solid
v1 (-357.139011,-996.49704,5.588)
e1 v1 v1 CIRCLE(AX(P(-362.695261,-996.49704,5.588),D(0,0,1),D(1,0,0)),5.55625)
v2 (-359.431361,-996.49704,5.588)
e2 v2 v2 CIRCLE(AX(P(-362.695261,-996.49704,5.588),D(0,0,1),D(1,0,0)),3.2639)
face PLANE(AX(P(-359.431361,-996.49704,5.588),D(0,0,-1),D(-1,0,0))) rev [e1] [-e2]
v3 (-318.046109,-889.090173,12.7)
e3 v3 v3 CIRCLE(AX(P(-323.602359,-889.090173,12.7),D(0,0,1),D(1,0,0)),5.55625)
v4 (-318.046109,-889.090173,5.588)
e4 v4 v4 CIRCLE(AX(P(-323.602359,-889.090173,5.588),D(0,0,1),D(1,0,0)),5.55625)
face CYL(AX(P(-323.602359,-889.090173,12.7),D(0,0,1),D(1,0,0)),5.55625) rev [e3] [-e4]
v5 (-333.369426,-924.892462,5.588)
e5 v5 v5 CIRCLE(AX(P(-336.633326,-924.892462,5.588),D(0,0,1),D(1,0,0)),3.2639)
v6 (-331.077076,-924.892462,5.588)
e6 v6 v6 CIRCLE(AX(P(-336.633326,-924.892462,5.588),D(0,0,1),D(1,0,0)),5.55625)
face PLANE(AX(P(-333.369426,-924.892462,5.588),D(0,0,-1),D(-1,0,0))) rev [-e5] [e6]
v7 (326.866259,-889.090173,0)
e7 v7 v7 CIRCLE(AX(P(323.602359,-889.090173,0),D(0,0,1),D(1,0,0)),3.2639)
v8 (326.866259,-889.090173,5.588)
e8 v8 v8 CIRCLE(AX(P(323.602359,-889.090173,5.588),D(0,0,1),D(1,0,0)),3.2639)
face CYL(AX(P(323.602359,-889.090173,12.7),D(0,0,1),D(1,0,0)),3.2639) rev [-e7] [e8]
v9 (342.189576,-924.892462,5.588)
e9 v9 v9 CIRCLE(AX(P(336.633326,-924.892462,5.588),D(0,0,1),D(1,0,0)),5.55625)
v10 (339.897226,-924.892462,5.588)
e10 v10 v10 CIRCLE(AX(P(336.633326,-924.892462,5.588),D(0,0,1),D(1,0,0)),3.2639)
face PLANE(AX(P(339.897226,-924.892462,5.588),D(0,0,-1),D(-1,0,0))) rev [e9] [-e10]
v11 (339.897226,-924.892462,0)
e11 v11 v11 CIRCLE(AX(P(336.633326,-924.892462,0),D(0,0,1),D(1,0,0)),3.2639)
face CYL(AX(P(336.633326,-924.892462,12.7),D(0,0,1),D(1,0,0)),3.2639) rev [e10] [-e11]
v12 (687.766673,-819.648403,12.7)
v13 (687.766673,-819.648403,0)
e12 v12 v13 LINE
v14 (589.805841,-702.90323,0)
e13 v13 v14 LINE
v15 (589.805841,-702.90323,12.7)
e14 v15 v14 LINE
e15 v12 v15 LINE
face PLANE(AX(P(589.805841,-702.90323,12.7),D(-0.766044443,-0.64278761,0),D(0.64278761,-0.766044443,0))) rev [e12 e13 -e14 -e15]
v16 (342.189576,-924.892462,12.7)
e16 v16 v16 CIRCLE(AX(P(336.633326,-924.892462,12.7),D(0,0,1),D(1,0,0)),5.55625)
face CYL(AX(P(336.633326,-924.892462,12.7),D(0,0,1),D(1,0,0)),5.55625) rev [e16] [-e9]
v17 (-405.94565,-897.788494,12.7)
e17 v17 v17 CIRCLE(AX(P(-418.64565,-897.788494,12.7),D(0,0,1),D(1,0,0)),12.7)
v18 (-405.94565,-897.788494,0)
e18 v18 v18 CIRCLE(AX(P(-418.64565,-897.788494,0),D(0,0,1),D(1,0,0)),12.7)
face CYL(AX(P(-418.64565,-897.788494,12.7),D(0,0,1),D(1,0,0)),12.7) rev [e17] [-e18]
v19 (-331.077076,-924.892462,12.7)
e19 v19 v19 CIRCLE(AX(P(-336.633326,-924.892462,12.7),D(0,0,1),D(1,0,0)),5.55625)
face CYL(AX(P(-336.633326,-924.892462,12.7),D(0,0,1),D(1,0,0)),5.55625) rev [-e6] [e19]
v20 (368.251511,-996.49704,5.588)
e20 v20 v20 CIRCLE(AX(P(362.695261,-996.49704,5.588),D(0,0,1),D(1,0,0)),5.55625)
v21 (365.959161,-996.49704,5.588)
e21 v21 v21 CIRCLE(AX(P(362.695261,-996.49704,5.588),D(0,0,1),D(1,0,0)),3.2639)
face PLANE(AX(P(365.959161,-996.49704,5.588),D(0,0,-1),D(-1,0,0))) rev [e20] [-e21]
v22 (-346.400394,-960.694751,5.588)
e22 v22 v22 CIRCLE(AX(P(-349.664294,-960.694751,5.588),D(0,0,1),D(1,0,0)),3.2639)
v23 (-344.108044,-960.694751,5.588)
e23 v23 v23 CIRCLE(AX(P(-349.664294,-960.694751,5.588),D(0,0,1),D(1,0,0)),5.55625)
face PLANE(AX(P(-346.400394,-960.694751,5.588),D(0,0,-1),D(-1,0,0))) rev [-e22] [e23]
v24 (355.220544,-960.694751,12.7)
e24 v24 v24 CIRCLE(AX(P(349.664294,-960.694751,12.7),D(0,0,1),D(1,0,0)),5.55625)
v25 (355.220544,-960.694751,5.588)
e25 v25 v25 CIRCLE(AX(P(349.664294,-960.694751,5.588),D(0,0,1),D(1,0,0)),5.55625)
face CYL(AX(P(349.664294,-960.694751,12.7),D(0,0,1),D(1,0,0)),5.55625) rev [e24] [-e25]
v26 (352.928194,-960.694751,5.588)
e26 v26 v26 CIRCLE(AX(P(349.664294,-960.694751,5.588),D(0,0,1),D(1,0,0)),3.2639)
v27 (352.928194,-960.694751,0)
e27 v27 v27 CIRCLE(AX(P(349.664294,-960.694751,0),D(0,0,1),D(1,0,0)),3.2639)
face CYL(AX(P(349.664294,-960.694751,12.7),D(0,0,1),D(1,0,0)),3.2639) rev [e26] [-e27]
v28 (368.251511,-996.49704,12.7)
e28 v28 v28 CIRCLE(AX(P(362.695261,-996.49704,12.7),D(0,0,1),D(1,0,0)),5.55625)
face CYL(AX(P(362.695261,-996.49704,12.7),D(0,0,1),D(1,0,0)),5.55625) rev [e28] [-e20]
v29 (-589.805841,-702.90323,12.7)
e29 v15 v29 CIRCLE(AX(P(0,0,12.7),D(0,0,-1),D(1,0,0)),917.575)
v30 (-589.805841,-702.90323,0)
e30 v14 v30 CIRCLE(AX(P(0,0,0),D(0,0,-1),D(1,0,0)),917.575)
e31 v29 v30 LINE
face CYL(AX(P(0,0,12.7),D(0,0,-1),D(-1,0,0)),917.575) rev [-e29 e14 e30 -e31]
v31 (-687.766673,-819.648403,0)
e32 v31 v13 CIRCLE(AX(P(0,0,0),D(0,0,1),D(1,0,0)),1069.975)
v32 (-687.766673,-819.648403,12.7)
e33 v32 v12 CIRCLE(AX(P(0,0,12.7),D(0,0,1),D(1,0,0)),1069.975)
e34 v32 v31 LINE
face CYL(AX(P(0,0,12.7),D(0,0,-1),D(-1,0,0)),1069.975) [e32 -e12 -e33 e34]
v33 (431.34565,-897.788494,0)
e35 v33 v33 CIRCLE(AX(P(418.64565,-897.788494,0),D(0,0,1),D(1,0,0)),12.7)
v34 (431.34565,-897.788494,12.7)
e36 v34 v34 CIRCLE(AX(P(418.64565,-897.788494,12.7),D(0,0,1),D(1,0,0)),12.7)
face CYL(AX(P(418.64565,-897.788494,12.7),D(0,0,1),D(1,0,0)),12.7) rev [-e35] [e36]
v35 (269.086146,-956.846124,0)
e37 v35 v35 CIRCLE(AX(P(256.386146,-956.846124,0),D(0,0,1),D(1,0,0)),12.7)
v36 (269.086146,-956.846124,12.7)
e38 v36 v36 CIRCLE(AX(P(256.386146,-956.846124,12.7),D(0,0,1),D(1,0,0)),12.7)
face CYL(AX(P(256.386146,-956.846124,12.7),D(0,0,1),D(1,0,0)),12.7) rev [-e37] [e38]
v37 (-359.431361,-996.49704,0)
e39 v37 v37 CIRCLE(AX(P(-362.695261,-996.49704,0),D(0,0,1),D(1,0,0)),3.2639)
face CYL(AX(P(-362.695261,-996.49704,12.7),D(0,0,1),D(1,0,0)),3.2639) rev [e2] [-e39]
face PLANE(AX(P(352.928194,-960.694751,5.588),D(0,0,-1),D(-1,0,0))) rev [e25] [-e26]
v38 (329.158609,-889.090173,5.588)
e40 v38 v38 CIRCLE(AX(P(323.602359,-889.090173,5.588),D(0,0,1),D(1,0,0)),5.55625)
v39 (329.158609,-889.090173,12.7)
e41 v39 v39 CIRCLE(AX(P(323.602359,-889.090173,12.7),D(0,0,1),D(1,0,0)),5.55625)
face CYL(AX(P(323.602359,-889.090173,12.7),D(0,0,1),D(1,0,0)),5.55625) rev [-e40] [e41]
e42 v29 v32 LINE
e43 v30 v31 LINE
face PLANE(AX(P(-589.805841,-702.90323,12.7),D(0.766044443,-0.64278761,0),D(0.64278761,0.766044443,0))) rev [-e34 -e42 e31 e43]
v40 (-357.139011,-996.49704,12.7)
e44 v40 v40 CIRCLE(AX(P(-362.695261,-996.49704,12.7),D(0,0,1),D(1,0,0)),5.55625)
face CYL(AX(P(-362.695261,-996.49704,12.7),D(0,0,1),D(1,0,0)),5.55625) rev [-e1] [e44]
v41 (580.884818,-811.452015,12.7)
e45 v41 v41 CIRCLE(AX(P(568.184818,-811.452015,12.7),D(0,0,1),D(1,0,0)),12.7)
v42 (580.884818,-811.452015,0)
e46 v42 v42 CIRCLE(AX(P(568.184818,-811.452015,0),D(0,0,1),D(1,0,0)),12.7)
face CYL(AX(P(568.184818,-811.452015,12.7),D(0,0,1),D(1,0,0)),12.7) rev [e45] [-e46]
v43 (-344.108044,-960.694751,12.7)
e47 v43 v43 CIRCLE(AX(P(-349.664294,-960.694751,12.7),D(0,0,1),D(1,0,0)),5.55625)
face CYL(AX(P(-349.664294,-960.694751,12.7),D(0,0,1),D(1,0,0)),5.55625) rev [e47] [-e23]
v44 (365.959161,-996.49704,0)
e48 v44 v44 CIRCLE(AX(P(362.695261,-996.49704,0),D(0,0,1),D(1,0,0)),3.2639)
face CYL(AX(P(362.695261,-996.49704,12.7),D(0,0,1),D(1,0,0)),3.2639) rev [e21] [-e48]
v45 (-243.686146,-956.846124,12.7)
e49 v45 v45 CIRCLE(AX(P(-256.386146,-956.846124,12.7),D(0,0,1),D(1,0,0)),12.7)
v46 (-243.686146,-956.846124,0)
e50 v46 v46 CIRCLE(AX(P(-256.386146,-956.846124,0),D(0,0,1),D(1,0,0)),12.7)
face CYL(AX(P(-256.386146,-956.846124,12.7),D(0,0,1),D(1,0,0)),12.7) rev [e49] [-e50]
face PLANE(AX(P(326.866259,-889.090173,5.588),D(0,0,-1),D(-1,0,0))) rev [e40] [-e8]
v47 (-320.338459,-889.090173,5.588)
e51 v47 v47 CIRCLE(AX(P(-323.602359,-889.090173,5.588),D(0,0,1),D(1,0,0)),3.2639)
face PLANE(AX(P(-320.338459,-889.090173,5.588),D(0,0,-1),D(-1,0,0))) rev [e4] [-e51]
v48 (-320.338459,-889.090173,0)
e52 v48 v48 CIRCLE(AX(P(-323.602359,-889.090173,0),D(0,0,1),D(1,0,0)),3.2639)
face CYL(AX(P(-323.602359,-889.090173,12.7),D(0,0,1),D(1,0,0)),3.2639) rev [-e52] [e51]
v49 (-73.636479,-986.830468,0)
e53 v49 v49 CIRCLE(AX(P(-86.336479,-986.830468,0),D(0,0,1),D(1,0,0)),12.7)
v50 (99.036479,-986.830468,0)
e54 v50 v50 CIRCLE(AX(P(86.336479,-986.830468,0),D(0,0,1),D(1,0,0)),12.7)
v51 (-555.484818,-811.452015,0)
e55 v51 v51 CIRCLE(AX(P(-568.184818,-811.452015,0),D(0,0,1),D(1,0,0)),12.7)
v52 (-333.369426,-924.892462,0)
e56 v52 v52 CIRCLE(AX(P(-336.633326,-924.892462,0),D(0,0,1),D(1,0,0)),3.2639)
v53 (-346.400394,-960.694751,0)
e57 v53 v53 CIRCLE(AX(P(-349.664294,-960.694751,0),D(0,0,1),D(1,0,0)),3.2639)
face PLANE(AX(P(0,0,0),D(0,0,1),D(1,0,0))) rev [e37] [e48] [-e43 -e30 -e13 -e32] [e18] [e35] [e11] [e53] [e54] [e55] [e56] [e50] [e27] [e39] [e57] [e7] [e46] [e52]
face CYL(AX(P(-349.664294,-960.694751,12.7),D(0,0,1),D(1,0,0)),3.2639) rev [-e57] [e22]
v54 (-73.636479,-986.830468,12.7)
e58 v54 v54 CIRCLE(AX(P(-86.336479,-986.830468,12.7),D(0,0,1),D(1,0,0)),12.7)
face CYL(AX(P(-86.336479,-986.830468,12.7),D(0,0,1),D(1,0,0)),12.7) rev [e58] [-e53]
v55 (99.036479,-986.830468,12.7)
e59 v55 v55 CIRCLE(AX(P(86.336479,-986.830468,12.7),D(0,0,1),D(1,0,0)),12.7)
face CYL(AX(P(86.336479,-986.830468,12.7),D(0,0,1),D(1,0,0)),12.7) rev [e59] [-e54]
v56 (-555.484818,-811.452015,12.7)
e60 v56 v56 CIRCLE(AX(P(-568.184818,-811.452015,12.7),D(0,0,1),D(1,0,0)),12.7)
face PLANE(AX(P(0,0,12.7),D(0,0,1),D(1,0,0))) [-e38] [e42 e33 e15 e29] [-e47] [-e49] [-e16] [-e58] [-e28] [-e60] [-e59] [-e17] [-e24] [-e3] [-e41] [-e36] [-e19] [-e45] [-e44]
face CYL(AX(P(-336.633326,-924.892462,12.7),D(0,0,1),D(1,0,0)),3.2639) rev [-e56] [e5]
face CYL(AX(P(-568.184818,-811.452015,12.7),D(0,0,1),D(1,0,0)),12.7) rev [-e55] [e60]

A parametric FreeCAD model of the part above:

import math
import FreeCAD as App
import Part
import Sketcher
Q = App.Units.Quantity

doc = App.newDocument("Part")
body = doc.addObject("PartDesign::Body", "Body")

# Sketch on XY plane
sketch1 = doc.addObject("Sketcher::SketchObject", "Sketch")
body.addObject(sketch1)
sketch1.AttachmentSupport = (doc.XY_Plane, [""])
sketch1.MapMode = "FlatFace"
sketch1.addGeometry([
    Part.LineSegment(App.Vector(688, -820, 0), App.Vector(590, -703, 0)),
    Part.ArcOfCircle(Part.Circle(App.Vector(0, 0, 0), App.Vector(0, 0, 1), 918), math.radians(-130), math.radians(-50)),
    Part.LineSegment(App.Vector(-590, -703, 0), App.Vector(-688, -820, 0)),
    Part.ArcOfCircle(Part.Circle(App.Vector(0, 0, 0), App.Vector(0, 0, 1), 1070), math.radians(-130), math.radians(-50)),
], False)
sketch1.addConstraint([
    Sketcher.Constraint("Coincident", 0, 2, 1, 2),
    Sketcher.Constraint("Coincident", 1, 1, 2, 1),
    Sketcher.Constraint("Coincident", 2, 2, 3, 1),
    Sketcher.Constraint("Coincident", 3, 2, 0, 1),
    Sketcher.Constraint("Coincident", 1, 3, -1, 1),
    Sketcher.Constraint("Coincident", 3, 3, -1, 1),
    Sketcher.Constraint("Distance", 0, Q("6 in")),
    Sketcher.Constraint("Angle", 0, Q("130 deg")),
    Sketcher.Constraint("Angle", 2, Q("-130 deg")),
    Sketcher.Constraint("Radius", 1, Q("36.125 in")),
    Sketcher.Constraint("DistanceX", -1, 1, 0, 2, 589.805841),
    Sketcher.Constraint("DistanceX", 2, 2, -1, 1, 687.766673),
])
pad1 = doc.addObject("PartDesign::Pad", "Pad")
body.addObject(pad1)
pad1.Profile = sketch1
pad1.Length = Q("0.5 in")

# Sketch on XY plane
sketch2 = doc.addObject("Sketcher::SketchObject", "Sketch001")
body.addObject(sketch2)
sketch2.AttachmentSupport = (doc.XY_Plane, [""])
sketch2.MapMode = "FlatFace"
sketch2.AttachmentOffset = App.Placement(App.Vector(0, 0, 0.5 * 25.4), App.Rotation())
sketch2.addGeometry([
    Part.Circle(App.Vector(568, -811, 0), App.Vector(0, 0, 1), 13),  # 0
    Part.Circle(App.Vector(-419, -898, 0), App.Vector(0, 0, 1), 13),  # 1
    Part.Circle(App.Vector(419, -898, 0), App.Vector(0, 0, 1), 13),  # 2
    Part.Circle(App.Vector(-568, -811, 0), App.Vector(0, 0, 1), 13),  # 3
    Part.Circle(App.Vector(256, -957, 0), App.Vector(0, 0, 1), 13),  # 4
    Part.Circle(App.Vector(86, -987, 0), App.Vector(0, 0, 1), 13),  # 5
    Part.Circle(App.Vector(-86, -987, 0), App.Vector(0, 0, 1), 13),  # 6
    Part.Circle(App.Vector(-256, -957, 0), App.Vector(0, 0, 1), 13),  # 7
], False)
sketch2.addConstraint([
    Sketcher.Constraint("Equal", 0, 1),
    Sketcher.Constraint("Equal", 1, 2),
    Sketcher.Constraint("Equal", 2, 3),
    Sketcher.Constraint("Equal", 3, 4),
    Sketcher.Constraint("Equal", 4, 5),
    Sketcher.Constraint("Equal", 5, 6),
    Sketcher.Constraint("Equal", 6, 7),
    Sketcher.Constraint("Symmetric", 1, 3, 2, 3, -2),
    Sketcher.Constraint("Symmetric", 0, 3, 3, 3, -2),
    Sketcher.Constraint("Symmetric", 5, 3, 6, 3, -2),
    Sketcher.Constraint("Symmetric", 4, 3, 7, 3, -2),
    Sketcher.Constraint("Diameter", 0, Q("1 in")),
    Sketcher.Constraint("DistanceX", 1, 3, 2, 3, 837.2913),
    Sketcher.Constraint("DistanceX", -1, 1, 5, 3, 86.336479),
    Sketcher.Constraint("DistanceY", 1, 3, 0, 3, 86.336479),
    Sketcher.Constraint("DistanceY", 4, 3, 2, 3, 59.05763),
    Sketcher.Constraint("DistanceX", 4, 3, 0, 3, 311.798672),
    Sketcher.Constraint("DistanceX", 5, 3, 0, 3, 481.848339),
    Sketcher.Constraint("DistanceY", 0, 3, -1, 1, 811.452015),
    Sketcher.Constraint("DistanceY", 5, 3, -1, 1, 986.830468),
])
doc.recompute()
hole = doc.addObject("PartDesign::Hole", "Hole")
body.addObject(hole)
hole.Profile = sketch2
hole.ThreadType = "None"
hole.Diameter = Q("1 in")
hole.DepthType = "ThroughAll"

# Sketch on XY plane
sketch3 = doc.addObject("Sketcher::SketchObject", "Sketch002")
body.addObject(sketch3)
sketch3.AttachmentSupport = (doc.XY_Plane, [""])
sketch3.MapMode = "FlatFace"
sketch3.AttachmentOffset = App.Placement(App.Vector(0, 0, 0.5 * 25.4), App.Rotation())
sketch3.addGeometry([
    Part.Circle(App.Vector(362.7, -996.5, 0), App.Vector(0, 0, 1), 3.3),  # 0
    Part.Circle(App.Vector(336.6, -924.9, 0), App.Vector(0, 0, 1), 3.3),  # 1
    Part.Circle(App.Vector(323.6, -889.1, 0), App.Vector(0, 0, 1), 3.3),  # 2
    Part.Circle(App.Vector(349.7, -960.7, 0), App.Vector(0, 0, 1), 3.3),  # 3
    Part.Circle(App.Vector(-323.6, -889.1, 0), App.Vector(0, 0, 1), 3.3),  # 4
    Part.Circle(App.Vector(-336.6, -924.9, 0), App.Vector(0, 0, 1), 3.3),  # 5
    Part.Circle(App.Vector(-349.7, -960.7, 0), App.Vector(0, 0, 1), 3.3),  # 6
    Part.Circle(App.Vector(-362.7, -996.5, 0), App.Vector(0, 0, 1), 3.3),  # 7
], False)
sketch3.addConstraint([
    Sketcher.Constraint("Equal", 0, 1),
    Sketcher.Constraint("Equal", 1, 2),
    Sketcher.Constraint("Equal", 2, 3),
    Sketcher.Constraint("Equal", 3, 4),
    Sketcher.Constraint("Equal", 4, 5),
    Sketcher.Constraint("Equal", 5, 6),
    Sketcher.Constraint("Equal", 6, 7),
    Sketcher.Constraint("Symmetric", 2, 3, 4, 3, -2),
    Sketcher.Constraint("Symmetric", 1, 3, 5, 3, -2),
    Sketcher.Constraint("Symmetric", 3, 3, 6, 3, -2),
    Sketcher.Constraint("Symmetric", 0, 3, 7, 3, -2),
    Sketcher.Constraint("Diameter", 0, Q("0.257 in")),
    Sketcher.Constraint("DistanceX", -1, 1, 0, 3, 362.695261),
    Sketcher.Constraint("DistanceY", 0, 3, -1, 1, 996.49704),
    Sketcher.Constraint("DistanceX", -1, 1, 2, 3, 323.602359),
    Sketcher.Constraint("DistanceY", 3, 3, -1, 1, 960.694751),
    Sketcher.Constraint("DistanceY", 1, 3, 2, 3, 35.802289),
    Sketcher.Constraint("DistanceY", 3, 3, 1, 3, 35.802289),
    Sketcher.Constraint("DistanceX", 5, 3, 3, 3, 686.29762),
    Sketcher.Constraint("DistanceX", -1, 1, 1, 3, 336.633326),
])
doc.recompute()
hole2 = doc.addObject("PartDesign::Hole", "Hole001")
body.addObject(hole2)
hole2.Profile = sketch3
hole2.ThreadType = "None"
hole2.Diameter = Q("0.257 in")
hole2.DepthType = "ThroughAll"
hole2.HoleCutType = "Counterbore"
hole2.HoleCutDiameter = Q("0.4375 in")
hole2.HoleCutDepth = Q("0.28 in")

doc.recompute()
